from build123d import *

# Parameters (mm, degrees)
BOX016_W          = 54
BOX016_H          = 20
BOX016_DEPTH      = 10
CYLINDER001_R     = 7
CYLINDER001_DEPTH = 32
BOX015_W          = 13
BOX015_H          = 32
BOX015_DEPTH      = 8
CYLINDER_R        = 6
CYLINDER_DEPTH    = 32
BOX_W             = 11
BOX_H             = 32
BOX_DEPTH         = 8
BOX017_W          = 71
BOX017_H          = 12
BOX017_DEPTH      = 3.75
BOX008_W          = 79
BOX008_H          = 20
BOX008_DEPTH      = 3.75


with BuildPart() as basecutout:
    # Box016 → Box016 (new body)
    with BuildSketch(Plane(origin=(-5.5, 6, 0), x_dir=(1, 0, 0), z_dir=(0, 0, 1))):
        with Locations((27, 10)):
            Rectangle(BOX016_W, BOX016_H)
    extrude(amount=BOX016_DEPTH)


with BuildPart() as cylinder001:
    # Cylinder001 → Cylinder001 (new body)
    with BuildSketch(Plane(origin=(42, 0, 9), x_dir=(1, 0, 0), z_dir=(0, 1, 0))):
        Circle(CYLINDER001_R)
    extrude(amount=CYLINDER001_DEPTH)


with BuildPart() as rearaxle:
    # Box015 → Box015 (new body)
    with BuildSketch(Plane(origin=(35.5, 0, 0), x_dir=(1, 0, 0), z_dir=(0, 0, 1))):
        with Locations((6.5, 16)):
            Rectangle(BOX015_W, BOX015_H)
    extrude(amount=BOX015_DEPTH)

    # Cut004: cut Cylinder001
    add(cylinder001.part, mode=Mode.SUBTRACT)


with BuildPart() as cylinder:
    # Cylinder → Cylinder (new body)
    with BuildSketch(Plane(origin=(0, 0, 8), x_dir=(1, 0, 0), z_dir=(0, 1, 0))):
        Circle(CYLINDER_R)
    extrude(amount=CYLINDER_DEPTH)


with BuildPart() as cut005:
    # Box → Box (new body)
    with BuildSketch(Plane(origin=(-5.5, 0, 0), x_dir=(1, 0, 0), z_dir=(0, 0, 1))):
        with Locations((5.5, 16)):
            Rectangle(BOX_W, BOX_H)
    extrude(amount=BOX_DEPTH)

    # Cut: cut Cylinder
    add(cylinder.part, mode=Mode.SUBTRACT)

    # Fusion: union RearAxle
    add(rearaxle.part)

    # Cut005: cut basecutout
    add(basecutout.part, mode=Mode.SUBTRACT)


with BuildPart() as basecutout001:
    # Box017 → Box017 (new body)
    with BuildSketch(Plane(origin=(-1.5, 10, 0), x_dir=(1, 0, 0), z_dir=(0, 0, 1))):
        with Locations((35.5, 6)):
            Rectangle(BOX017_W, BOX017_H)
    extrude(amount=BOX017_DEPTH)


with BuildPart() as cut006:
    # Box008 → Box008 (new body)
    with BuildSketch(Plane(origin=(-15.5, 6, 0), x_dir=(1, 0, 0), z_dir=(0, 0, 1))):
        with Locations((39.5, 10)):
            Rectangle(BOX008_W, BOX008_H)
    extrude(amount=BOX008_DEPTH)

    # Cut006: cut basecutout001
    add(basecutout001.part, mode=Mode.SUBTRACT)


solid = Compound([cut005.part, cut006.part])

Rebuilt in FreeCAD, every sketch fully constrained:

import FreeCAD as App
import Part
import Sketcher
from FreeCAD import Vector
Q = App.Units.Quantity


def add_polygon(sketch, points):
    """Adds a closed chain of lines whose ends are joined by coincident constraints."""
    first, n = sketch.GeometryCount, len(points)
    for a, b in zip(points, points[1:] + points[:1]):
        sketch.addGeometry(Part.LineSegment(App.Vector(*a, 0), App.Vector(*b, 0)), False)
    for i in range(n):
        sketch.addConstraint(Sketcher.Constraint("Coincident", first + i, 2, first + (i + 1) % n, 1))

doc = App.newDocument("Part")
params = doc.addObject("Spreadsheet::Sheet", "Params")
for row, (alias, value) in enumerate([
    ("sketch1_width", "54 mm"),
    ("sketch1_height", "20 mm"),
    ("pad1_length", "10 mm"),
    ("sketch2_diameter", "14 mm"),
    ("pad2_length", "32 mm"),
    ("sketch3_width", "13 mm"),
    ("sketch3_height", "32 mm"),
    ("pad3_length", "8 mm"),
    ("sketch4_diameter", "12 mm"),
    ("pad4_length", "32 mm"),
    ("sketch5_width", "11 mm"),
    ("sketch5_height", "32 mm"),
    ("pad5_length", "8 mm"),
    ("sketch6_width", "71 mm"),
    ("sketch6_height", "12 mm"),
    ("pad6_length", "3.75 mm"),
    ("sketch7_width", "79 mm"),
    ("sketch7_height", "20 mm"),
    ("pad7_length", "3.75 mm"),
], start=1):
    params.set(f"A{row}", alias)
    params.set(f"B{row}", "=" + value)
    params.setAlias(f"B{row}", alias)

body = doc.addObject("PartDesign::Body", "Body")

sketch1 = body.newObject("Sketcher::SketchObject", "Sketch")
sketch1.AttachmentSupport = (doc.getObject("XY_Plane"), [""])
sketch1.MapMode = "FlatFace"
add_polygon(sketch1, [(-6, 26), (-6, 6), (48, 6), (48, 26)])
sketch1.addConstraint([
    Sketcher.Constraint("Vertical", 0),
    Sketcher.Constraint("Horizontal", 1),
    Sketcher.Constraint("Vertical", 2),
    Sketcher.Constraint("Horizontal", 3),
    Sketcher.Constraint("DistanceX", 1, 1, 1, 2, Q("54 mm")),
    Sketcher.Constraint("DistanceY", 0, 2, 0, 1, Q("20 mm")),
    Sketcher.Constraint("DistanceY", -1, 1, 0, 2, Q("6 mm")),
    Sketcher.Constraint("DistanceX", 0, 2, -1, 1, Q("5.5 mm")),
])
sketch1.setExpression("Constraints[8]", "Params.sketch1_width")
sketch1.setExpression("Constraints[9]", "Params.sketch1_height")
pad1 = body.newObject("PartDesign::Pad", "Pad")
pad1.Profile = sketch1
pad1.setExpression("Length", "Params.pad1_length")
body2 = doc.addObject("PartDesign::Body", "Body001")

sketch2 = body2.newObject("Sketcher::SketchObject", "Sketch001")
sketch2.AttachmentSupport = (doc.getObject("XZ_Plane001"), [""])
sketch2.MapMode = "FlatFace"
sketch2.addGeometry(Part.Circle(Vector(42, 9, 0), Vector(0, 0, 1), 7), False)
sketch2.addConstraint([
    Sketcher.Constraint("Diameter", 0, Q("14 mm")),
    Sketcher.Constraint("DistanceX", -1, 1, 0, 3, Q("42 mm")),
    Sketcher.Constraint("DistanceY", -1, 1, 0, 3, Q("9 mm")),
])
sketch2.setExpression("Constraints[0]", "Params.sketch2_diameter")
pad2 = body2.newObject("PartDesign::Pad", "Pad001")
pad2.Profile = sketch2
pad2.setExpression("Length", "Params.pad2_length")
pad2.Reversed = True
body3 = doc.addObject("PartDesign::Body", "Body002")

sketch3 = body3.newObject("Sketcher::SketchObject", "Sketch002")
sketch3.AttachmentSupport = (doc.getObject("XY_Plane002"), [""])
sketch3.MapMode = "FlatFace"
add_polygon(sketch3, [(36, 32), (36, 0), (48, 0), (48, 32)])
sketch3.addConstraint([
    Sketcher.Constraint("Vertical", 0),
    Sketcher.Constraint("Horizontal", 1),
    Sketcher.Constraint("Vertical", 2),
    Sketcher.Constraint("Horizontal", 3),
    Sketcher.Constraint("PointOnObject", 0, 2, -1),
    Sketcher.Constraint("DistanceX", 1, 1, 1, 2, Q("13 mm")),
    Sketcher.Constraint("DistanceY", 0, 2, 0, 1, Q("32 mm")),
    Sketcher.Constraint("DistanceX", -1, 1, 0, 2, Q("35.5 mm")),
])
sketch3.setExpression("Constraints[9]", "Params.sketch3_width")
sketch3.setExpression("Constraints[10]", "Params.sketch3_height")
pad3 = body3.newObject("PartDesign::Pad", "Pad002")
pad3.Profile = sketch3
pad3.setExpression("Length", "Params.pad3_length")
doc.recompute()

boolean = body3.newObject("PartDesign::Boolean", "Boolean")
boolean.Type = "Cut"
boolean.addObjects([body2])
body4 = doc.addObject("PartDesign::Body", "Body003")

sketch4 = body4.newObject("Sketcher::SketchObject", "Sketch003")
sketch4.AttachmentSupport = (doc.getObject("XZ_Plane003"), [""])
sketch4.MapMode = "FlatFace"
sketch4.addGeometry(Part.Circle(Vector(0, 8, 0), Vector(0, 0, 1), 6), False)
sketch4.addConstraint([
    Sketcher.Constraint("PointOnObject", 0, 3, -2),
    Sketcher.Constraint("Diameter", 0, Q("12 mm")),
    Sketcher.Constraint("DistanceY", -1, 1, 0, 3, Q("8 mm")),
])
sketch4.setExpression("Constraints[1]", "Params.sketch4_diameter")
pad4 = body4.newObject("PartDesign::Pad", "Pad003")
pad4.Profile = sketch4
pad4.setExpression("Length", "Params.pad4_length")
pad4.Reversed = True
body5 = doc.addObject("PartDesign::Body", "Body004")
body5.AllowCompound = True

sketch5 = body5.newObject("Sketcher::SketchObject", "Sketch004")
sketch5.AttachmentSupport = (doc.getObject("XY_Plane004"), [""])
sketch5.MapMode = "FlatFace"
add_polygon(sketch5, [(-6, 32), (-6, 0), (6, 0), (6, 32)])
sketch5.addConstraint([
    Sketcher.Constraint("Vertical", 0),
    Sketcher.Constraint("Horizontal", 1),
    Sketcher.Constraint("Vertical", 2),
    Sketcher.Constraint("Horizontal", 3),
    Sketcher.Constraint("Symmetric", 0, 2, 1, 2, -1, 1),
    Sketcher.Constraint("DistanceX", 1, 1, 1, 2, Q("11 mm")),
    Sketcher.Constraint("DistanceY", 0, 2, 0, 1, Q("32 mm")),
])
sketch5.setExpression("Constraints[9]", "Params.sketch5_width")
sketch5.setExpression("Constraints[10]", "Params.sketch5_height")
pad5 = body5.newObject("PartDesign::Pad", "Pad004")
pad5.Profile = sketch5
pad5.setExpression("Length", "Params.pad5_length")
doc.recompute()

boolean2 = body5.newObject("PartDesign::Boolean", "Boolean001")
boolean2.Type = "Cut"
boolean2.addObjects([body4])
doc.recompute()

boolean3 = body5.newObject("PartDesign::Boolean", "Boolean002")
boolean3.Type = "Fuse"
boolean3.addObjects([body3])
doc.recompute()

boolean4 = body5.newObject("PartDesign::Boolean", "Boolean003")
boolean4.Type = "Cut"
boolean4.addObjects([body])
body6 = doc.addObject("PartDesign::Body", "Body005")

sketch6 = body6.newObject("Sketcher::SketchObject", "Sketch005")
sketch6.AttachmentSupport = (doc.getObject("XY_Plane005"), [""])
sketch6.MapMode = "FlatFace"
add_polygon(sketch6, [(-2, 22), (-2, 10), (70, 10), (70, 22)])
sketch6.addConstraint([
    Sketcher.Constraint("Vertical", 0),
    Sketcher.Constraint("Horizontal", 1),
    Sketcher.Constraint("Vertical", 2),
    Sketcher.Constraint("Horizontal", 3),
    Sketcher.Constraint("DistanceX", 1, 1, 1, 2, Q("71 mm")),
    Sketcher.Constraint("DistanceY", 0, 2, 0, 1, Q("12 mm")),
    Sketcher.Constraint("DistanceY", -1, 1, 0, 2, Q("10 mm")),
    Sketcher.Constraint("DistanceX", 0, 2, -1, 1, Q("1.5 mm")),
])
sketch6.setExpression("Constraints[8]", "Params.sketch6_width")
sketch6.setExpression("Constraints[9]", "Params.sketch6_height")
pad6 = body6.newObject("PartDesign::Pad", "Pad005")
pad6.Profile = sketch6
pad6.setExpression("Length", "Params.pad6_length")
body7 = doc.addObject("PartDesign::Body", "Body006")

sketch7 = body7.newObject("Sketcher::SketchObject", "Sketch006")
sketch7.AttachmentSupport = (doc.getObject("XY_Plane006"), [""])
sketch7.MapMode = "FlatFace"
add_polygon(sketch7, [(-16, 26), (-16, 6), (64, 6), (64, 26)])
sketch7.addConstraint([
    Sketcher.Constraint("Vertical", 0),
    Sketcher.Constraint("Horizontal", 1),
    Sketcher.Constraint("Vertical", 2),
    Sketcher.Constraint("Horizontal", 3),
    Sketcher.Constraint("DistanceX", 1, 1, 1, 2, Q("79 mm")),
    Sketcher.Constraint("DistanceY", 0, 2, 0, 1, Q("20 mm")),
    Sketcher.Constraint("DistanceY", -1, 1, 0, 2, Q("6 mm")),
    Sketcher.Constraint("DistanceX", 0, 2, -1, 1, Q("15.5 mm")),
])
sketch7.setExpression("Constraints[8]", "Params.sketch7_width")
sketch7.setExpression("Constraints[9]", "Params.sketch7_height")
pad7 = body7.newObject("PartDesign::Pad", "Pad006")
pad7.Profile = sketch7
pad7.setExpression("Length", "Params.pad7_length")
doc.recompute()

boolean5 = body7.newObject("PartDesign::Boolean", "Boolean004")
boolean5.Type = "Cut"
boolean5.addObjects([body6])

doc.recompute()
